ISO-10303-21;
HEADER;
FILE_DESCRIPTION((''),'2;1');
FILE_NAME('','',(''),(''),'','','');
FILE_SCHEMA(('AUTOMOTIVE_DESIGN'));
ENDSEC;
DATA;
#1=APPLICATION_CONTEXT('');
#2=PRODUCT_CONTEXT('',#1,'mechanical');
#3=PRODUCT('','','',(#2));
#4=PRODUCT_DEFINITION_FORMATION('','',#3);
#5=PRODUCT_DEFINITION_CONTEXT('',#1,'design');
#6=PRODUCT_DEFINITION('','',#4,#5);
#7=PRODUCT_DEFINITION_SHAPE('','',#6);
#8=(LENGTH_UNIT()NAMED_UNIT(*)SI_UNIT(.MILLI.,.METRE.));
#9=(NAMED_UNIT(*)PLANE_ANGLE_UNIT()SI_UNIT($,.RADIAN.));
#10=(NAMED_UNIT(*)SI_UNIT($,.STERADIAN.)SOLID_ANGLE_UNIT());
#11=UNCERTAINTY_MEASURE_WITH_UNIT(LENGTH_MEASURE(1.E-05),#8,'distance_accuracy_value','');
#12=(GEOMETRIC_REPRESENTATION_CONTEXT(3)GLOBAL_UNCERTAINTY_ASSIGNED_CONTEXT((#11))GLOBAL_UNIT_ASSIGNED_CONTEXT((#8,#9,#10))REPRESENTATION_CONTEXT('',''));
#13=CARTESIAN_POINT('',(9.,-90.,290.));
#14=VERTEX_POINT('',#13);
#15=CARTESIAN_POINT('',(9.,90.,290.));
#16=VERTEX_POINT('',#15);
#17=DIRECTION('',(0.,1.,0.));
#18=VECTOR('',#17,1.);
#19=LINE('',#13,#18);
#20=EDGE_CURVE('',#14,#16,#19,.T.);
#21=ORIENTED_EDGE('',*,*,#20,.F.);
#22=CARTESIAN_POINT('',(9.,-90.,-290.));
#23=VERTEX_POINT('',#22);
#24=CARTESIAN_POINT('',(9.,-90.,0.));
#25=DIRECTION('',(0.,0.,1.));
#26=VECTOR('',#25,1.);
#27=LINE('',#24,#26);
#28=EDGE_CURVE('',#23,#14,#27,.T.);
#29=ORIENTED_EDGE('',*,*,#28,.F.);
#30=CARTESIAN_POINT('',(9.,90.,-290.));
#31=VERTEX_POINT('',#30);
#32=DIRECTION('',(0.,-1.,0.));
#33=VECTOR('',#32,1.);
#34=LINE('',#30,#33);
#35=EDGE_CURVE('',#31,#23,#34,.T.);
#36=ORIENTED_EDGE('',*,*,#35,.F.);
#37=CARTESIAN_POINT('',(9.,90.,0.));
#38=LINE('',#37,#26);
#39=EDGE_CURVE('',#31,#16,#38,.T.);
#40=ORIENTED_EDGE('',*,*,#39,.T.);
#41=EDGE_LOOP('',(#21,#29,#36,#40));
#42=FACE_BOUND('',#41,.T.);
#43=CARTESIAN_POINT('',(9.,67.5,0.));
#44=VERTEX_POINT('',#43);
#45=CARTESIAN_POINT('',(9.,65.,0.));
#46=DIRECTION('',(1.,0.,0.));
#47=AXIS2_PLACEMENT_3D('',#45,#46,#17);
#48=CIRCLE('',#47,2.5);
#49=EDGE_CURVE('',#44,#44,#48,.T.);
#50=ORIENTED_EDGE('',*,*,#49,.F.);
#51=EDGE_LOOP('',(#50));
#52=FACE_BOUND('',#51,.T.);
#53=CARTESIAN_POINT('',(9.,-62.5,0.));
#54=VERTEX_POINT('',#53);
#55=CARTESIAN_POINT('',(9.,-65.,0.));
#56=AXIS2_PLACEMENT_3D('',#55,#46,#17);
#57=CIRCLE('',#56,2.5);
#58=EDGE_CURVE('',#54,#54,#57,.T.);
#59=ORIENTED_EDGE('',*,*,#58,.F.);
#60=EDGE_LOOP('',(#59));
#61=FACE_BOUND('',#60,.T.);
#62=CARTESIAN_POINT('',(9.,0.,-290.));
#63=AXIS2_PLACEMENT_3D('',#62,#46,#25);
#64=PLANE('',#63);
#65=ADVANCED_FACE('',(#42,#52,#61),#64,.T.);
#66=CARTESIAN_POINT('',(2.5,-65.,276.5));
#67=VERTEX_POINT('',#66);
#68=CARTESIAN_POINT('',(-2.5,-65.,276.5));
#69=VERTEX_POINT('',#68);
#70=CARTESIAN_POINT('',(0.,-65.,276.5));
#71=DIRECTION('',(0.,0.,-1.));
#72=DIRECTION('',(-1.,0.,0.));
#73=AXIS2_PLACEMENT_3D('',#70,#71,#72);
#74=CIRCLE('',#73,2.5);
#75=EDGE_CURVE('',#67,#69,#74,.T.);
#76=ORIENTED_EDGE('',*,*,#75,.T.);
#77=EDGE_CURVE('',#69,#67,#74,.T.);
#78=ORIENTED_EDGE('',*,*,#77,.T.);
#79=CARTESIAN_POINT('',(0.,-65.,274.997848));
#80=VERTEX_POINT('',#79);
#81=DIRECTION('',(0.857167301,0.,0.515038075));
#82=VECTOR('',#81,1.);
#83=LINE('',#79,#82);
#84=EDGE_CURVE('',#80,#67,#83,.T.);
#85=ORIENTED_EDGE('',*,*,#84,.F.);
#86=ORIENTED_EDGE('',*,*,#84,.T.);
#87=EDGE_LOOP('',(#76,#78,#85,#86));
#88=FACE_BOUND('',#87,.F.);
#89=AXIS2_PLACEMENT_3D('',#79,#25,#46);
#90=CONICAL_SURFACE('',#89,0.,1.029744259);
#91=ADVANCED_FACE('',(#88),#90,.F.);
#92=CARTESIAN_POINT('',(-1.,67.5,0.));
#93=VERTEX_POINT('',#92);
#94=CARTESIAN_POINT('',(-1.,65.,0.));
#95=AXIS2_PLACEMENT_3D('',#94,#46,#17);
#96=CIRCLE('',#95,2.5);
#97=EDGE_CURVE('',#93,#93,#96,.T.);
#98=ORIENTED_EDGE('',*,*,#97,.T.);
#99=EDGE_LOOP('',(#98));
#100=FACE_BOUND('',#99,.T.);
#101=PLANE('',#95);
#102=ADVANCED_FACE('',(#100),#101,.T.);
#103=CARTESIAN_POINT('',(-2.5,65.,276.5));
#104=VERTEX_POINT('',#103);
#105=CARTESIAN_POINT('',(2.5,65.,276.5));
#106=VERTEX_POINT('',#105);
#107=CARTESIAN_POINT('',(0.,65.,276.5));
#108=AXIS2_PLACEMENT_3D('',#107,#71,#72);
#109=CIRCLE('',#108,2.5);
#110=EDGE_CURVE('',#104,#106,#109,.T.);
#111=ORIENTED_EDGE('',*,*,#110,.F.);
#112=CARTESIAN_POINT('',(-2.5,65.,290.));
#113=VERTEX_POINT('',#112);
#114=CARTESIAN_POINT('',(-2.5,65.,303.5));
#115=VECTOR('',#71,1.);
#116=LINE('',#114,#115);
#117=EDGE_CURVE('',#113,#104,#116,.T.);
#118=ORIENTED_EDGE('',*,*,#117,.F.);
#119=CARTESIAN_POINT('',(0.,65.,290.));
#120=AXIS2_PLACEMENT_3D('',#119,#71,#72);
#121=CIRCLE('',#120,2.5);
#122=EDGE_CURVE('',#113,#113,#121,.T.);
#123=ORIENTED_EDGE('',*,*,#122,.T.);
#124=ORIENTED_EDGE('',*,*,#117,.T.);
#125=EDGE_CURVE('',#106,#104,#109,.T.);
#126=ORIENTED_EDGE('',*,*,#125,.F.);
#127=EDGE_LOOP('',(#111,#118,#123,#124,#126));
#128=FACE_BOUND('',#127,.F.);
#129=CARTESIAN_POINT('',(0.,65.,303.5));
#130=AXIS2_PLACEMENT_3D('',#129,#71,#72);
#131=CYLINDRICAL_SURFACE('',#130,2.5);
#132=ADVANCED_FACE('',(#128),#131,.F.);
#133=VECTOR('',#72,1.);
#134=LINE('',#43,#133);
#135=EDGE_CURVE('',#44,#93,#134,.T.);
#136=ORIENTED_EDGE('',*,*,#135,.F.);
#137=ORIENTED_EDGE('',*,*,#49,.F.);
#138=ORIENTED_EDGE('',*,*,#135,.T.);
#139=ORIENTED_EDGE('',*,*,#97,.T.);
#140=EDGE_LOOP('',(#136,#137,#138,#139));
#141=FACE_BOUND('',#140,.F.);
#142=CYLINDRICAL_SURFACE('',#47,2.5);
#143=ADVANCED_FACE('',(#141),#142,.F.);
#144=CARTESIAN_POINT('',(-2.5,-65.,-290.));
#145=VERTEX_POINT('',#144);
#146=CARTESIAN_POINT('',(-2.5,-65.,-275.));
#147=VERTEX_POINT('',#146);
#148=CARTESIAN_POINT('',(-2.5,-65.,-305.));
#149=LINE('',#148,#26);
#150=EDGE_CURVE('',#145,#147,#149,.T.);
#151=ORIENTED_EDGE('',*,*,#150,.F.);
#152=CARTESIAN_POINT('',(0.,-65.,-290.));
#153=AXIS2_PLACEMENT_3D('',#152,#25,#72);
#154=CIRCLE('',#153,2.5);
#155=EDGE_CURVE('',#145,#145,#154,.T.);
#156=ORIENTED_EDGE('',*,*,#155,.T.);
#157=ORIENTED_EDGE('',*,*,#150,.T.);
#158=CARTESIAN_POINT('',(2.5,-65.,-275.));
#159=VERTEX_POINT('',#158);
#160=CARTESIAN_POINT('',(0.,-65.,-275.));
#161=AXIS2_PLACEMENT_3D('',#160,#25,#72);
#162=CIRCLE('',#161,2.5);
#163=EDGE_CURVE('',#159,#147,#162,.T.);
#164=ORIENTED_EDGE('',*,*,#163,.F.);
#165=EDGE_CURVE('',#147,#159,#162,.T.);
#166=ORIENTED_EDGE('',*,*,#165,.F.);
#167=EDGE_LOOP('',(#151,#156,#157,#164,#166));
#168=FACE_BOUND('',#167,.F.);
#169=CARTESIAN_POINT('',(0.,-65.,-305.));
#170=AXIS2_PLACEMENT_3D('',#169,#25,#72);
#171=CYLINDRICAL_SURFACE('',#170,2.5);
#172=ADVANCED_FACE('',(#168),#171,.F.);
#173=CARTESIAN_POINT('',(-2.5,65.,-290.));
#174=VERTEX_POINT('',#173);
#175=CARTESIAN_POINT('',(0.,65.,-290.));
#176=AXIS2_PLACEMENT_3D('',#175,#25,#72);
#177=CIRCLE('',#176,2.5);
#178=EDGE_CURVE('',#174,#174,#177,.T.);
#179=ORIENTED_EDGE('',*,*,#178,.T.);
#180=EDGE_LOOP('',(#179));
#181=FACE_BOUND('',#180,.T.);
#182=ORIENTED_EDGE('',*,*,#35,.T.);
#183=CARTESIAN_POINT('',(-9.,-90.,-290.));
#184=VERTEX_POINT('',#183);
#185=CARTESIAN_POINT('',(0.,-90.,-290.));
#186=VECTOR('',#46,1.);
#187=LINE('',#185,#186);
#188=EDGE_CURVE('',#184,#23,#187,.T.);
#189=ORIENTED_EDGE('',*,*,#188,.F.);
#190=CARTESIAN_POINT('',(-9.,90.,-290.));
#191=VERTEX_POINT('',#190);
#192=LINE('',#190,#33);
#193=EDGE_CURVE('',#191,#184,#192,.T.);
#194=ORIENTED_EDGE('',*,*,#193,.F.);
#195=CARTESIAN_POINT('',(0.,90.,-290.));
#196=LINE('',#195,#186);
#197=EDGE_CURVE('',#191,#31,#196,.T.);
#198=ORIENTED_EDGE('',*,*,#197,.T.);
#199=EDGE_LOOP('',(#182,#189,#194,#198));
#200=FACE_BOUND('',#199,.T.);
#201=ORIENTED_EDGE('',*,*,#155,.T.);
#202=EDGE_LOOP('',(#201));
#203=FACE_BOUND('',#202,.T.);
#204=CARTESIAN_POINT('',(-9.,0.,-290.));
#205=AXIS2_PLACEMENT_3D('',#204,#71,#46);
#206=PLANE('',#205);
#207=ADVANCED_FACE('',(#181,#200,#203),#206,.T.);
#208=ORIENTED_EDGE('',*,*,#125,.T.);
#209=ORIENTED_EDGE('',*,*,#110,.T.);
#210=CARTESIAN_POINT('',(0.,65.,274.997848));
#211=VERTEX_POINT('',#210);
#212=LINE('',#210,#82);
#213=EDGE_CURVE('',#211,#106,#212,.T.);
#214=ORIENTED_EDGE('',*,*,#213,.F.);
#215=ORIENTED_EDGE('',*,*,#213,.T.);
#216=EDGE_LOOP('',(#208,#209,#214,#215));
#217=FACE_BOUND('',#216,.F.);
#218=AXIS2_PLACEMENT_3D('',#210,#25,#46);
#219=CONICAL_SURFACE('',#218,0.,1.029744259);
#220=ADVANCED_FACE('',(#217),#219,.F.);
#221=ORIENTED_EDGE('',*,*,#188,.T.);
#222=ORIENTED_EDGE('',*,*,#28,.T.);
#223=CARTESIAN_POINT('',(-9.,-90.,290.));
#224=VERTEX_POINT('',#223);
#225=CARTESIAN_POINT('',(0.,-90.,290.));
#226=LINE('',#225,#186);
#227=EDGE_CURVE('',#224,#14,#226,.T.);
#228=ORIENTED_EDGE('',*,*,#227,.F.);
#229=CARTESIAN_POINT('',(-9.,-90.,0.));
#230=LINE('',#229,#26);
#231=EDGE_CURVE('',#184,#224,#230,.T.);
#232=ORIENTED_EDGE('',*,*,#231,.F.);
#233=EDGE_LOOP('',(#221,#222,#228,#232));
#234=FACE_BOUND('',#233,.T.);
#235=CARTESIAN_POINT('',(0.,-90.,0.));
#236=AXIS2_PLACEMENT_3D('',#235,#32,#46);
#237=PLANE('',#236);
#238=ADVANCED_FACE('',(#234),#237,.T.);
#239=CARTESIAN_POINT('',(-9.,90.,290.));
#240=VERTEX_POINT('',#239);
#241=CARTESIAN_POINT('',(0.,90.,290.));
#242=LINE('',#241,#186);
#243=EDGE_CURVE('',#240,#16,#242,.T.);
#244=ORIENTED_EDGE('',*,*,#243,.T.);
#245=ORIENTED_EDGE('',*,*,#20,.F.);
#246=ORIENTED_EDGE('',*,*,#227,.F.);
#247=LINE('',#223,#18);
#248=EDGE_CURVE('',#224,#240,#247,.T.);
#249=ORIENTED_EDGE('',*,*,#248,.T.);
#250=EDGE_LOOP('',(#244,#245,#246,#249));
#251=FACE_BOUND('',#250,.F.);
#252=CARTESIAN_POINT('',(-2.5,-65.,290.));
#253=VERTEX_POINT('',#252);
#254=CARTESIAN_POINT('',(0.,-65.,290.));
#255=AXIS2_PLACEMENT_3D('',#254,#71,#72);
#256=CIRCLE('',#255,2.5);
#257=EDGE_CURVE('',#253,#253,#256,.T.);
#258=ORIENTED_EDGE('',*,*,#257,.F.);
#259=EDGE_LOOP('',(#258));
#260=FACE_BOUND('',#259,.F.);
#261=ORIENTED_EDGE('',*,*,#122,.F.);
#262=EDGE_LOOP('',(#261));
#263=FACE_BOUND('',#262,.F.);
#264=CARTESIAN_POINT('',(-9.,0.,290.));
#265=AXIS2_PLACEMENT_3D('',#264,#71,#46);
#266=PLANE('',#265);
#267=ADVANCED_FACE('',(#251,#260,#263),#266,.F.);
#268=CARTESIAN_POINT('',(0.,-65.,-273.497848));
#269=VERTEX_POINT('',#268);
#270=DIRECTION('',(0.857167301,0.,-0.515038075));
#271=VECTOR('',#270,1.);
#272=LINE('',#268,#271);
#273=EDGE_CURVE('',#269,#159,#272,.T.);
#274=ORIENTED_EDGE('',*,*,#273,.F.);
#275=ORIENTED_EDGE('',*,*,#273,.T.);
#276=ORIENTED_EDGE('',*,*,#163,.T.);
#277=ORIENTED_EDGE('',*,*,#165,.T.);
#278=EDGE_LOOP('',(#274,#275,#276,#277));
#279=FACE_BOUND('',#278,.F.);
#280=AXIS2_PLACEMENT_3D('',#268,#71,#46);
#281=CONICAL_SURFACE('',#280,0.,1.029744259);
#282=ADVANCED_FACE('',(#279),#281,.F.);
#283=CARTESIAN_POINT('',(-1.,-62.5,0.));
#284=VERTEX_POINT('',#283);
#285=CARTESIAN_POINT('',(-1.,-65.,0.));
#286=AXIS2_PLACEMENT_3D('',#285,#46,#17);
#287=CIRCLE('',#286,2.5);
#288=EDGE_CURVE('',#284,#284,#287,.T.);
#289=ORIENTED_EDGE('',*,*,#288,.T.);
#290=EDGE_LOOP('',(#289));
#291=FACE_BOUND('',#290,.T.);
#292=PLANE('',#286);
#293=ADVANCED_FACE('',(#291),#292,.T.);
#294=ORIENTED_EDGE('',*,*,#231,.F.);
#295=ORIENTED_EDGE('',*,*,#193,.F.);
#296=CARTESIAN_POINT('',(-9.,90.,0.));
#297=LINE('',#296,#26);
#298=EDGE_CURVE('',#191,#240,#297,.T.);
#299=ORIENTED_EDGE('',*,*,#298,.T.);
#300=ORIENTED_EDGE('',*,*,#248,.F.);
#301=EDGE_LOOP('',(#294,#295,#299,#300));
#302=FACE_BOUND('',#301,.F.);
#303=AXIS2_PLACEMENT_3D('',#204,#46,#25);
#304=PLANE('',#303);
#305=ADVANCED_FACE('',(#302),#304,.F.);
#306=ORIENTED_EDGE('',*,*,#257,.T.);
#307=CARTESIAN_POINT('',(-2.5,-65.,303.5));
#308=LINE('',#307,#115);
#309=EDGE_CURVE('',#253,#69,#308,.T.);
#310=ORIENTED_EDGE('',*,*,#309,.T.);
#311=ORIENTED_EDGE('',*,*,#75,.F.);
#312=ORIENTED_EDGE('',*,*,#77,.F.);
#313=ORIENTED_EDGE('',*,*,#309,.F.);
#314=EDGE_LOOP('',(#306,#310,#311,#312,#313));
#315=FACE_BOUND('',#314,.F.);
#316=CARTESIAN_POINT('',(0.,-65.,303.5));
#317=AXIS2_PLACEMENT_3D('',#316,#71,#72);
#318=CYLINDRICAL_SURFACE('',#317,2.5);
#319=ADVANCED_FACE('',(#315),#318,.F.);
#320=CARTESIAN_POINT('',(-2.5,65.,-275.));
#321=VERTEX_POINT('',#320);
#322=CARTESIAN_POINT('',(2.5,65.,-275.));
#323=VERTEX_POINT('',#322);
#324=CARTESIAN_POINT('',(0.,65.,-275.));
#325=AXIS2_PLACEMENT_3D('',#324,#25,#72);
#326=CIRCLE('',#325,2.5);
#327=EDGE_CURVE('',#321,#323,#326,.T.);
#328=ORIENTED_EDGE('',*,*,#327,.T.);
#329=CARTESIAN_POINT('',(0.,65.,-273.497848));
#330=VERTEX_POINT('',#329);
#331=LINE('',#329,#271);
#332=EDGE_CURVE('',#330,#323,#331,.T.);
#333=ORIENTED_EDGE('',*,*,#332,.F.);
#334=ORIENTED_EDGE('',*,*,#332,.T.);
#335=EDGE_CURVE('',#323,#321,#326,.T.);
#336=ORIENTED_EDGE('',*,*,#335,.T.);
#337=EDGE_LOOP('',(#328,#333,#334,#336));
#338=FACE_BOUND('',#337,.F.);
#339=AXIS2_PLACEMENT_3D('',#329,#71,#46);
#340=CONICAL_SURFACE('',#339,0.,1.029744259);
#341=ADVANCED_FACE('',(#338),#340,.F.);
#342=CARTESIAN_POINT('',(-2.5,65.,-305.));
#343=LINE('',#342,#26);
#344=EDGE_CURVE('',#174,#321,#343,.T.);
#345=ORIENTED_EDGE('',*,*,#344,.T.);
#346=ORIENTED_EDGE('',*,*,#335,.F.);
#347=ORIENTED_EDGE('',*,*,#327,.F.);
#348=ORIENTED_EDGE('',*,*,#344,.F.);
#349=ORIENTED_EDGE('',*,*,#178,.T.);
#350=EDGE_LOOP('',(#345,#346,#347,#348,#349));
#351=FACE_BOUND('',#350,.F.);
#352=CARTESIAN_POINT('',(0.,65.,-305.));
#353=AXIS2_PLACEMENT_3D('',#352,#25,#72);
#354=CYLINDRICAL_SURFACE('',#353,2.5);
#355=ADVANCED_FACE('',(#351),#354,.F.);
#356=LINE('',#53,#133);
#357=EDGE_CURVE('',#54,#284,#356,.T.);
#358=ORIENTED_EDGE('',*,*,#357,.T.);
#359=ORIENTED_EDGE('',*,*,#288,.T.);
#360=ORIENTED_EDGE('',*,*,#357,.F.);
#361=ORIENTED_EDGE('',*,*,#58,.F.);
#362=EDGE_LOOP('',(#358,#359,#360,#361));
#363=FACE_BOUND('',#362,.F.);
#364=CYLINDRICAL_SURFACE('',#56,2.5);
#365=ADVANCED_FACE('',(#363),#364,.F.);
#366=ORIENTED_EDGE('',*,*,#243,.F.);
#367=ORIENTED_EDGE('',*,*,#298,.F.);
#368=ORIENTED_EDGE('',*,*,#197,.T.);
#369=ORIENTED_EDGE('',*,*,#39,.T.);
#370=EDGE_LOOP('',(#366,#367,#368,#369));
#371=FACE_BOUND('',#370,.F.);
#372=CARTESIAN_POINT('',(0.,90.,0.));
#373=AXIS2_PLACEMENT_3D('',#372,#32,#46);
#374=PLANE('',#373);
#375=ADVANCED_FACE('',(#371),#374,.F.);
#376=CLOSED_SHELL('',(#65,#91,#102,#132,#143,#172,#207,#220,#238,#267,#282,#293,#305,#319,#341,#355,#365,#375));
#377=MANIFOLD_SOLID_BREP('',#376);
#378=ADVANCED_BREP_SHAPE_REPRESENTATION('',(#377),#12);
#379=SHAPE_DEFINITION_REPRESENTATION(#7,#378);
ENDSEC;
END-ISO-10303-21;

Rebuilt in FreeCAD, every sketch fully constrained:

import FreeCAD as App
import Part
import Sketcher

V = App.Vector
Q = App.Units.Quantity

doc = App.newDocument("Part")
params = doc.addObject("Spreadsheet::Sheet", "Params")
for row, (alias, value) in enumerate([
    ("sketch1_width", "18 mm"),
    ("sketch1_height", "580 mm"),
    ("pad1_length", "180 mm"),
    ("sketch2_diameter", "5 mm"),
    ("hole_diameter", "5 mm"),
    ("hole_depth", "13.5 mm"),
    ("sketch3_diameter", "5 mm"),
    ("hole2_diameter", "5 mm"),
    ("hole2_depth", "15 mm"),
    ("sketch4_diameter", "5 mm"),
    ("sketch4_width", "180 mm"),
    ("sketch4_height", "580 mm"),
    ("pocket1_length", "10 mm"),
    ("sketch5_diameter", "5 mm"),
    ("pocket2_length", "10 mm"),
], start=1):
    params.set(f"A{row}", alias)
    params.set(f"B{row}", "=" + value)
    params.setAlias(f"B{row}", alias)

body = doc.addObject("PartDesign::Body", "Body")

sketch1 = body.newObject("Sketcher::SketchObject", "Sketch")
sketch1.AttachmentSupport = (doc.getObject("XZ_Plane"), [""])
sketch1.MapMode = "FlatFace"
sketch1.addGeometry([
    Part.LineSegment(V(-9, 290, 0), V(-9, -290, 0)),
    Part.LineSegment(V(-9, -290, 0), V(9, -290, 0)),
    Part.LineSegment(V(9, -290, 0), V(9, 290, 0)),
    Part.LineSegment(V(9, 290, 0), V(-9, 290, 0)),
], False)
sketch1.addConstraint([
    Sketcher.Constraint("Coincident", 0, 2, 1, 1),
    Sketcher.Constraint("Coincident", 1, 2, 2, 1),
    Sketcher.Constraint("Coincident", 2, 2, 3, 1),
    Sketcher.Constraint("Coincident", 3, 2, 0, 1),
    Sketcher.Constraint("Vertical", 0),
    Sketcher.Constraint("Horizontal", 1),
    Sketcher.Constraint("Vertical", 2),
    Sketcher.Constraint("Horizontal", 3),
    Sketcher.Constraint("Symmetric", 0, 2, 2, 2, -1, 1),
    Sketcher.Constraint("DistanceX", 1, 1, 1, 2, Q("18 mm")),
    Sketcher.Constraint("DistanceY", 0, 2, 0, 1, Q("580 mm")),
])
sketch1.setExpression("Constraints[9]", "Params.sketch1_width")
sketch1.setExpression("Constraints[10]", "Params.sketch1_height")
pad1 = body.newObject("PartDesign::Pad", "Pad")
pad1.Profile = sketch1
pad1.setExpression("Length", "Params.pad1_length")
pad1.Midplane = True

sketch2 = body.newObject("Sketcher::SketchObject", "Sketch001")
sketch2.AttachmentSupport = (doc.getObject("XY_Plane"), [""])
sketch2.MapMode = "FlatFace"
sketch2.AttachmentOffset = App.Placement(V(0, 0, 290), App.Rotation())
sketch2.addGeometry([
    Part.Circle(V(0, 65, 0), V(0, 0, 1), 2.5),
    Part.Circle(V(0, -65, 0), V(0, 0, 1), 2.5),
], False)
sketch2.addConstraint([
    Sketcher.Constraint("Equal", 0, 1),
    Sketcher.Constraint("Symmetric", 0, 3, 1, 3, -1, 1),
    Sketcher.Constraint("PointOnObject", 0, 3, -2),
    Sketcher.Constraint("Diameter", 0, Q("5 mm")),
    Sketcher.Constraint("DistanceY", -1, 1, 0, 3, Q("65 mm")),
])
sketch2.setExpression("Constraints[3]", "Params.sketch2_diameter")
doc.recompute()
hole = body.newObject("PartDesign::Hole", "Hole")
hole.Profile = sketch2
hole.ThreadType = "None"
hole.setExpression("Diameter", "Params.hole_diameter")
hole.DepthType = "Dimension"
hole.setExpression("Depth", "Params.hole_depth")
hole.DrillPoint = "Angled"
hole.DrillPointAngle = 118

sketch3 = body.newObject("Sketcher::SketchObject", "Sketch002")
sketch3.AttachmentSupport = (doc.getObject("XY_Plane"), [""])
sketch3.MapMode = "FlatFace"
sketch3.AttachmentOffset = App.Placement(V(0, 0, -290), App.Rotation())
sketch3.addGeometry([
    Part.Circle(V(0, -65, 0), V(0, 0, 1), 2.5),
    Part.Circle(V(0, 65, 0), V(0, 0, 1), 2.5),
], False)
sketch3.addConstraint([
    Sketcher.Constraint("Equal", 0, 1),
    Sketcher.Constraint("Symmetric", 0, 3, 1, 3, -1, 1),
    Sketcher.Constraint("PointOnObject", 0, 3, -2),
    Sketcher.Constraint("Diameter", 0, Q("5 mm")),
    Sketcher.Constraint("DistanceY", 0, 3, -1, 1, Q("65 mm")),
])
sketch3.setExpression("Constraints[3]", "Params.sketch3_diameter")
doc.recompute()
hole2 = body.newObject("PartDesign::Hole", "Hole001")
hole2.Profile = sketch3
hole2.ThreadType = "None"
hole2.setExpression("Diameter", "Params.hole2_diameter")
hole2.DepthType = "Dimension"
hole2.setExpression("Depth", "Params.hole2_depth")
hole2.DrillPoint = "Angled"
hole2.DrillPointAngle = 118
hole2.Reversed = True

sketch4 = body.newObject("Sketcher::SketchObject", "Sketch003")
sketch4.AttachmentSupport = (doc.getObject("YZ_Plane"), [""])
sketch4.MapMode = "FlatFace"
sketch4.AttachmentOffset = App.Placement(V(0, 0, 9), App.Rotation())
sketch4.addGeometry([
    Part.LineSegment(V(-90, 290, 0), V(-90, -290, 0)),
    Part.LineSegment(V(-90, -290, 0), V(90, -290, 0)),
    Part.LineSegment(V(90, -290, 0), V(90, 290, 0)),
    Part.LineSegment(V(90, 290, 0), V(-90, 290, 0)),
    Part.Circle(V(-60, 0, 0), V(0, 0, 1), 2.5),
    Part.Circle(V(60, 0, 0), V(0, 0, 1), 2.5),
], False)
sketch4.addConstraint([
    Sketcher.Constraint("Coincident", 0, 2, 1, 1),
    Sketcher.Constraint("Coincident", 1, 2, 2, 1),
    Sketcher.Constraint("Coincident", 2, 2, 3, 1),
    Sketcher.Constraint("Coincident", 3, 2, 0, 1),
    Sketcher.Constraint("Vertical", 0),
    Sketcher.Constraint("Horizontal", 1),
    Sketcher.Constraint("Vertical", 2),
    Sketcher.Constraint("Horizontal", 3),
    Sketcher.Constraint("Equal", 4, 5),
    Sketcher.Constraint("Symmetric", 4, 3, 5, 3, -1, 1),
    Sketcher.Constraint("Symmetric", 0, 2, 2, 2, -1, 1),
    Sketcher.Constraint("PointOnObject", 4, 3, -1),
    Sketcher.Constraint("Diameter", 4, Q("5 mm")),
    Sketcher.Constraint("DistanceX", 1, 1, 1, 2, Q("180 mm")),
    Sketcher.Constraint("DistanceY", 0, 2, 0, 1, Q("580 mm")),
    Sketcher.Constraint("DistanceX", 4, 3, -1, 1, Q("60 mm")),
])
sketch4.setExpression("Constraints[12]", "Params.sketch4_diameter")
sketch4.setExpression("Constraints[13]", "Params.sketch4_width")
sketch4.setExpression("Constraints[14]", "Params.sketch4_height")
pocket1 = body.newObject("PartDesign::Pocket", "Pocket")
pocket1.Profile = sketch4
pocket1.setExpression("Length", "Params.pocket1_length")
pocket1.Reversed = True

sketch5 = body.newObject("Sketcher::SketchObject", "Sketch004")
sketch5.AttachmentSupport = (doc.getObject("YZ_Plane"), [""])
sketch5.MapMode = "FlatFace"
sketch5.AttachmentOffset = App.Placement(V(0, 0, 9), App.Rotation())
sketch5.addGeometry([
    Part.Circle(V(-65, 0, 0), V(0, 0, 1), 2.5),
    Part.Circle(V(65, 0, 0), V(0, 0, 1), 2.5),
], False)
sketch5.addConstraint([
    Sketcher.Constraint("Equal", 0, 1),
    Sketcher.Constraint("Symmetric", 0, 3, 1, 3, -1, 1),
    Sketcher.Constraint("PointOnObject", 0, 3, -1),
    Sketcher.Constraint("Diameter", 0, Q("5 mm")),
    Sketcher.Constraint("DistanceX", 0, 3, -1, 1, Q("65 mm")),
])
sketch5.setExpression("Constraints[3]", "Params.sketch5_diameter")
pocket2 = body.newObject("PartDesign::Pocket", "Pocket001")
pocket2.Profile = sketch5
pocket2.setExpression("Length", "Params.pocket2_length")

doc.recompute()
